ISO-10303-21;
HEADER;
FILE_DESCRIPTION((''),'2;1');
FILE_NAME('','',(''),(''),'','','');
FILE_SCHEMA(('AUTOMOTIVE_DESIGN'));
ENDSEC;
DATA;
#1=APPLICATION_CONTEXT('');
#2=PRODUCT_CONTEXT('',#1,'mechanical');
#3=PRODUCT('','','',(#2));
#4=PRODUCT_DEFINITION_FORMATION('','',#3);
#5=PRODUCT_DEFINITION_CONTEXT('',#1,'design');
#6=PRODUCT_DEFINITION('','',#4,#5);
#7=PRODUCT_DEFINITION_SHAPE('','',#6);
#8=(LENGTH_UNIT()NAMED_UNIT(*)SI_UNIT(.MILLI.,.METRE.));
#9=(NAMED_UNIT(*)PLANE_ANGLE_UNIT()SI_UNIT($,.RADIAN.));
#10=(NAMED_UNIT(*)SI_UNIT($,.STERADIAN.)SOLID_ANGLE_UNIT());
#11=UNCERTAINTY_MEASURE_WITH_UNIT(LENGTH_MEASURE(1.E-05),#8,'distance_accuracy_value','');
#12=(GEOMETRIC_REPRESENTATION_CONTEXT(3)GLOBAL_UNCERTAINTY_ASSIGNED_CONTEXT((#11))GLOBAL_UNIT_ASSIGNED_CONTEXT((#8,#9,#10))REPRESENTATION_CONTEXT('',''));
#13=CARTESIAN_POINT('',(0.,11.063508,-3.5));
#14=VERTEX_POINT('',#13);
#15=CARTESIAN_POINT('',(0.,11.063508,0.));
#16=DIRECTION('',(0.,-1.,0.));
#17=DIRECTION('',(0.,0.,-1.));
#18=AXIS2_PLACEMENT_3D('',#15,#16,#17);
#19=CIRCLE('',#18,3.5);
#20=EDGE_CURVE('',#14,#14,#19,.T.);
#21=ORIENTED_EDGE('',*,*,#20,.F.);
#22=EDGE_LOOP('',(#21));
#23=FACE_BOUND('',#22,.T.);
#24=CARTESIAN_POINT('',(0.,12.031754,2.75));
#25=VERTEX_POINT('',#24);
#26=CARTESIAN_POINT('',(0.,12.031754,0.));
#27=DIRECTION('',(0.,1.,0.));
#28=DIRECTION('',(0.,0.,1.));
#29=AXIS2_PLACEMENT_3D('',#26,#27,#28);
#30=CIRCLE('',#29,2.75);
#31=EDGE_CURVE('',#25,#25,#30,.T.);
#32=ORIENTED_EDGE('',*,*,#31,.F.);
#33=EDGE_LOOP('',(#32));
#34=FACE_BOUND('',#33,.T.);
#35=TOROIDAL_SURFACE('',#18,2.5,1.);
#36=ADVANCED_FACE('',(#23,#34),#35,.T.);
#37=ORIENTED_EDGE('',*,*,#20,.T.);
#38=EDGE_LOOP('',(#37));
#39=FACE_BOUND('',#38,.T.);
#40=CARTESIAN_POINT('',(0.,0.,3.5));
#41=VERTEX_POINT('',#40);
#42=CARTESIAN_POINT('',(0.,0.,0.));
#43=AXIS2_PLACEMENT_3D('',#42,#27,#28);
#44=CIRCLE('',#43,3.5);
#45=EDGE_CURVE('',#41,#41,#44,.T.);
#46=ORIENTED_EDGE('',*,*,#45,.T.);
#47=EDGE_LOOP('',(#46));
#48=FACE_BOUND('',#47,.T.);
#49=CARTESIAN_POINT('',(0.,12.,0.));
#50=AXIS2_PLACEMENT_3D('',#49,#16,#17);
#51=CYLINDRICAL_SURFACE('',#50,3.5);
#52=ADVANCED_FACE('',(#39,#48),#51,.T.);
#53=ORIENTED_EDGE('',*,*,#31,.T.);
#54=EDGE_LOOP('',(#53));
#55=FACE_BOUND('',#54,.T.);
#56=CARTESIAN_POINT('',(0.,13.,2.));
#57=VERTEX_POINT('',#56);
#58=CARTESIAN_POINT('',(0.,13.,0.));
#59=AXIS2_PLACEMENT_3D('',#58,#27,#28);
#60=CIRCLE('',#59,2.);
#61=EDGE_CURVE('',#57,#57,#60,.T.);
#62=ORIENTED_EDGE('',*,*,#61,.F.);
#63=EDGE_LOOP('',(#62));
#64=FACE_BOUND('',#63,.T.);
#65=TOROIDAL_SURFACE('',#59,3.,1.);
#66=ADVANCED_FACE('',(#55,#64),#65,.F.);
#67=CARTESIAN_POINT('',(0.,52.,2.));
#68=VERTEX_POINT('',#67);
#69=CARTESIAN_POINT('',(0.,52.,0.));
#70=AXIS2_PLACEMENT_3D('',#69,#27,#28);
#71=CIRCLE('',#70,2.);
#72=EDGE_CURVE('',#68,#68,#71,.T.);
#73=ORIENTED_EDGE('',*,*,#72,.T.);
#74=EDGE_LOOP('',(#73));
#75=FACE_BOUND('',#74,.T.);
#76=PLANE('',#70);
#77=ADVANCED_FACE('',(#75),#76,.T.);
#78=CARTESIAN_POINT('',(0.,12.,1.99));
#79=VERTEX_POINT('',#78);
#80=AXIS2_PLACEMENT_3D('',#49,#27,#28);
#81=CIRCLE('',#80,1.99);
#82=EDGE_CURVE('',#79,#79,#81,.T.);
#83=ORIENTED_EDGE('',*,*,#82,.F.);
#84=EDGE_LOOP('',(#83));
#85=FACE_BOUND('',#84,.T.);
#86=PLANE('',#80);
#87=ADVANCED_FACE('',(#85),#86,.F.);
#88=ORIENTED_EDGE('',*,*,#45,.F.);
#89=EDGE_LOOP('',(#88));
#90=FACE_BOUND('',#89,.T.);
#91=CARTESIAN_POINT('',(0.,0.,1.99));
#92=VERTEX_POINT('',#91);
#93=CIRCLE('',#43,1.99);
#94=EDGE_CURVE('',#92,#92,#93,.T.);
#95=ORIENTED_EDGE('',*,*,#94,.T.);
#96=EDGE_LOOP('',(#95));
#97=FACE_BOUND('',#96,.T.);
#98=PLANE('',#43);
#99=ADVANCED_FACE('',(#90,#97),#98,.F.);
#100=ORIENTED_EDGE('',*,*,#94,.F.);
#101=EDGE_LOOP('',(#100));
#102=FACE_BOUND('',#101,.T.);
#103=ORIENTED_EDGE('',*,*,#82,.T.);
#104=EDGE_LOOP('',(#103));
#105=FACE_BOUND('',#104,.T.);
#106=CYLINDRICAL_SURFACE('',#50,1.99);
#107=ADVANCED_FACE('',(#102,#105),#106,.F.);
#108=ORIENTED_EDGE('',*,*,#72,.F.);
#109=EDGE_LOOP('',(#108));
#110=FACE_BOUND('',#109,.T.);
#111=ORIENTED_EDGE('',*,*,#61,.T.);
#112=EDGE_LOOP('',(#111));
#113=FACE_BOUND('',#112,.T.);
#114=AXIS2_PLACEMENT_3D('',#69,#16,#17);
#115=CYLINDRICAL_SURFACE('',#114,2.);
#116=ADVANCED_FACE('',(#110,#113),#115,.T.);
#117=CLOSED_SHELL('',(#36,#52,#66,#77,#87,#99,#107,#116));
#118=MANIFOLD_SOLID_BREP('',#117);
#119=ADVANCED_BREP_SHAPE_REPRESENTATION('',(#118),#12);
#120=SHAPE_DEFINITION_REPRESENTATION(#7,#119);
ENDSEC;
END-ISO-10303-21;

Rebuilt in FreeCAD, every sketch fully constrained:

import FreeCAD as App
import Part
import Sketcher
from FreeCAD import Vector


def edges_at(feature, points):
    """Names of the edges that pass closest to the given points."""
    edges = feature.Shape.Edges
    near = lambda p: min(range(len(edges)), key=lambda i: edges[i].distToShape(Part.Vertex(*p))[0])
    return sorted({f"Edge{near(p) + 1}" for p in points})

doc = App.newDocument("Part")
params = doc.addObject("Spreadsheet::Sheet", "Params")
for row, (alias, value) in enumerate([
    ("sketch1_diameter", "7 mm"),
    ("sketch1_diameter2", "3.98 mm"),
    ("pad1_length", "12 mm"),
    ("sketch2_diameter", "4 mm"),
    ("pad2_length", "40 mm"),
    ("fillet_radius", "1 mm"),
    ("fillet2_radius", "1 mm"),
], start=1):
    params.set(f"A{row}", alias)
    params.set(f"B{row}", "=" + value)
    params.setAlias(f"B{row}", alias)

body = doc.addObject("PartDesign::Body", "Body")

sketch1 = body.newObject("Sketcher::SketchObject", "Sketch")
sketch1.AttachmentSupport = (doc.getObject("XZ_Plane"), [""])
sketch1.MapMode = "FlatFace"
sketch1.addGeometry([
    Part.Circle(Vector(0, 0, 0), Vector(0, 0, 1), 3.5),
    Part.Circle(Vector(0, 0, 0), Vector(0, 0, 1), 2),
], False)
sketch1.addConstraint([
    Sketcher.Constraint("Coincident", 0, 3, -1, 1),
    Sketcher.Constraint("Coincident", 1, 3, -1, 1),
    Sketcher.Constraint("Diameter", 0, 7.0),
    Sketcher.Constraint("Diameter", 1, 3.98),
])
sketch1.setExpression("Constraints[2]", "Params.sketch1_diameter")
sketch1.setExpression("Constraints[3]", "Params.sketch1_diameter2")
pad1 = body.newObject("PartDesign::Pad", "Pad")
pad1.Profile = sketch1
pad1.setExpression("Length", "Params.pad1_length")
pad1.Reversed = True

sketch2 = body.newObject("Sketcher::SketchObject", "Sketch001")
sketch2.AttachmentSupport = (doc.getObject("XZ_Plane"), [""])
sketch2.MapMode = "FlatFace"
sketch2.AttachmentOffset = App.Placement(Vector(0, 0, -12), App.Rotation())
sketch2.addGeometry(Part.Circle(Vector(0, 0, 0), Vector(0, 0, 1), 2), False)
sketch2.addConstraint([
    Sketcher.Constraint("Coincident", 0, 3, -1, 1),
    Sketcher.Constraint("Diameter", 0, 4.0),
])
sketch2.setExpression("Constraints[1]", "Params.sketch2_diameter")
pad2 = body.newObject("PartDesign::Pad", "Pad001")
pad2.Profile = sketch2
pad2.setExpression("Length", "Params.pad2_length")
pad2.Reversed = True
doc.recompute()

fillet = body.newObject("PartDesign::Fillet", "Fillet")
fillet.Base = (pad2, edges_at(pad2, [(0, 12, -2)]))
fillet.setExpression("Radius", "Params.fillet_radius")
doc.recompute()

fillet2 = body.newObject("PartDesign::Fillet", "Fillet001")
fillet2.Base = (fillet, edges_at(fillet, [(0, 12, -3.5)]))
fillet2.setExpression("Radius", "Params.fillet2_radius")

doc.recompute()
